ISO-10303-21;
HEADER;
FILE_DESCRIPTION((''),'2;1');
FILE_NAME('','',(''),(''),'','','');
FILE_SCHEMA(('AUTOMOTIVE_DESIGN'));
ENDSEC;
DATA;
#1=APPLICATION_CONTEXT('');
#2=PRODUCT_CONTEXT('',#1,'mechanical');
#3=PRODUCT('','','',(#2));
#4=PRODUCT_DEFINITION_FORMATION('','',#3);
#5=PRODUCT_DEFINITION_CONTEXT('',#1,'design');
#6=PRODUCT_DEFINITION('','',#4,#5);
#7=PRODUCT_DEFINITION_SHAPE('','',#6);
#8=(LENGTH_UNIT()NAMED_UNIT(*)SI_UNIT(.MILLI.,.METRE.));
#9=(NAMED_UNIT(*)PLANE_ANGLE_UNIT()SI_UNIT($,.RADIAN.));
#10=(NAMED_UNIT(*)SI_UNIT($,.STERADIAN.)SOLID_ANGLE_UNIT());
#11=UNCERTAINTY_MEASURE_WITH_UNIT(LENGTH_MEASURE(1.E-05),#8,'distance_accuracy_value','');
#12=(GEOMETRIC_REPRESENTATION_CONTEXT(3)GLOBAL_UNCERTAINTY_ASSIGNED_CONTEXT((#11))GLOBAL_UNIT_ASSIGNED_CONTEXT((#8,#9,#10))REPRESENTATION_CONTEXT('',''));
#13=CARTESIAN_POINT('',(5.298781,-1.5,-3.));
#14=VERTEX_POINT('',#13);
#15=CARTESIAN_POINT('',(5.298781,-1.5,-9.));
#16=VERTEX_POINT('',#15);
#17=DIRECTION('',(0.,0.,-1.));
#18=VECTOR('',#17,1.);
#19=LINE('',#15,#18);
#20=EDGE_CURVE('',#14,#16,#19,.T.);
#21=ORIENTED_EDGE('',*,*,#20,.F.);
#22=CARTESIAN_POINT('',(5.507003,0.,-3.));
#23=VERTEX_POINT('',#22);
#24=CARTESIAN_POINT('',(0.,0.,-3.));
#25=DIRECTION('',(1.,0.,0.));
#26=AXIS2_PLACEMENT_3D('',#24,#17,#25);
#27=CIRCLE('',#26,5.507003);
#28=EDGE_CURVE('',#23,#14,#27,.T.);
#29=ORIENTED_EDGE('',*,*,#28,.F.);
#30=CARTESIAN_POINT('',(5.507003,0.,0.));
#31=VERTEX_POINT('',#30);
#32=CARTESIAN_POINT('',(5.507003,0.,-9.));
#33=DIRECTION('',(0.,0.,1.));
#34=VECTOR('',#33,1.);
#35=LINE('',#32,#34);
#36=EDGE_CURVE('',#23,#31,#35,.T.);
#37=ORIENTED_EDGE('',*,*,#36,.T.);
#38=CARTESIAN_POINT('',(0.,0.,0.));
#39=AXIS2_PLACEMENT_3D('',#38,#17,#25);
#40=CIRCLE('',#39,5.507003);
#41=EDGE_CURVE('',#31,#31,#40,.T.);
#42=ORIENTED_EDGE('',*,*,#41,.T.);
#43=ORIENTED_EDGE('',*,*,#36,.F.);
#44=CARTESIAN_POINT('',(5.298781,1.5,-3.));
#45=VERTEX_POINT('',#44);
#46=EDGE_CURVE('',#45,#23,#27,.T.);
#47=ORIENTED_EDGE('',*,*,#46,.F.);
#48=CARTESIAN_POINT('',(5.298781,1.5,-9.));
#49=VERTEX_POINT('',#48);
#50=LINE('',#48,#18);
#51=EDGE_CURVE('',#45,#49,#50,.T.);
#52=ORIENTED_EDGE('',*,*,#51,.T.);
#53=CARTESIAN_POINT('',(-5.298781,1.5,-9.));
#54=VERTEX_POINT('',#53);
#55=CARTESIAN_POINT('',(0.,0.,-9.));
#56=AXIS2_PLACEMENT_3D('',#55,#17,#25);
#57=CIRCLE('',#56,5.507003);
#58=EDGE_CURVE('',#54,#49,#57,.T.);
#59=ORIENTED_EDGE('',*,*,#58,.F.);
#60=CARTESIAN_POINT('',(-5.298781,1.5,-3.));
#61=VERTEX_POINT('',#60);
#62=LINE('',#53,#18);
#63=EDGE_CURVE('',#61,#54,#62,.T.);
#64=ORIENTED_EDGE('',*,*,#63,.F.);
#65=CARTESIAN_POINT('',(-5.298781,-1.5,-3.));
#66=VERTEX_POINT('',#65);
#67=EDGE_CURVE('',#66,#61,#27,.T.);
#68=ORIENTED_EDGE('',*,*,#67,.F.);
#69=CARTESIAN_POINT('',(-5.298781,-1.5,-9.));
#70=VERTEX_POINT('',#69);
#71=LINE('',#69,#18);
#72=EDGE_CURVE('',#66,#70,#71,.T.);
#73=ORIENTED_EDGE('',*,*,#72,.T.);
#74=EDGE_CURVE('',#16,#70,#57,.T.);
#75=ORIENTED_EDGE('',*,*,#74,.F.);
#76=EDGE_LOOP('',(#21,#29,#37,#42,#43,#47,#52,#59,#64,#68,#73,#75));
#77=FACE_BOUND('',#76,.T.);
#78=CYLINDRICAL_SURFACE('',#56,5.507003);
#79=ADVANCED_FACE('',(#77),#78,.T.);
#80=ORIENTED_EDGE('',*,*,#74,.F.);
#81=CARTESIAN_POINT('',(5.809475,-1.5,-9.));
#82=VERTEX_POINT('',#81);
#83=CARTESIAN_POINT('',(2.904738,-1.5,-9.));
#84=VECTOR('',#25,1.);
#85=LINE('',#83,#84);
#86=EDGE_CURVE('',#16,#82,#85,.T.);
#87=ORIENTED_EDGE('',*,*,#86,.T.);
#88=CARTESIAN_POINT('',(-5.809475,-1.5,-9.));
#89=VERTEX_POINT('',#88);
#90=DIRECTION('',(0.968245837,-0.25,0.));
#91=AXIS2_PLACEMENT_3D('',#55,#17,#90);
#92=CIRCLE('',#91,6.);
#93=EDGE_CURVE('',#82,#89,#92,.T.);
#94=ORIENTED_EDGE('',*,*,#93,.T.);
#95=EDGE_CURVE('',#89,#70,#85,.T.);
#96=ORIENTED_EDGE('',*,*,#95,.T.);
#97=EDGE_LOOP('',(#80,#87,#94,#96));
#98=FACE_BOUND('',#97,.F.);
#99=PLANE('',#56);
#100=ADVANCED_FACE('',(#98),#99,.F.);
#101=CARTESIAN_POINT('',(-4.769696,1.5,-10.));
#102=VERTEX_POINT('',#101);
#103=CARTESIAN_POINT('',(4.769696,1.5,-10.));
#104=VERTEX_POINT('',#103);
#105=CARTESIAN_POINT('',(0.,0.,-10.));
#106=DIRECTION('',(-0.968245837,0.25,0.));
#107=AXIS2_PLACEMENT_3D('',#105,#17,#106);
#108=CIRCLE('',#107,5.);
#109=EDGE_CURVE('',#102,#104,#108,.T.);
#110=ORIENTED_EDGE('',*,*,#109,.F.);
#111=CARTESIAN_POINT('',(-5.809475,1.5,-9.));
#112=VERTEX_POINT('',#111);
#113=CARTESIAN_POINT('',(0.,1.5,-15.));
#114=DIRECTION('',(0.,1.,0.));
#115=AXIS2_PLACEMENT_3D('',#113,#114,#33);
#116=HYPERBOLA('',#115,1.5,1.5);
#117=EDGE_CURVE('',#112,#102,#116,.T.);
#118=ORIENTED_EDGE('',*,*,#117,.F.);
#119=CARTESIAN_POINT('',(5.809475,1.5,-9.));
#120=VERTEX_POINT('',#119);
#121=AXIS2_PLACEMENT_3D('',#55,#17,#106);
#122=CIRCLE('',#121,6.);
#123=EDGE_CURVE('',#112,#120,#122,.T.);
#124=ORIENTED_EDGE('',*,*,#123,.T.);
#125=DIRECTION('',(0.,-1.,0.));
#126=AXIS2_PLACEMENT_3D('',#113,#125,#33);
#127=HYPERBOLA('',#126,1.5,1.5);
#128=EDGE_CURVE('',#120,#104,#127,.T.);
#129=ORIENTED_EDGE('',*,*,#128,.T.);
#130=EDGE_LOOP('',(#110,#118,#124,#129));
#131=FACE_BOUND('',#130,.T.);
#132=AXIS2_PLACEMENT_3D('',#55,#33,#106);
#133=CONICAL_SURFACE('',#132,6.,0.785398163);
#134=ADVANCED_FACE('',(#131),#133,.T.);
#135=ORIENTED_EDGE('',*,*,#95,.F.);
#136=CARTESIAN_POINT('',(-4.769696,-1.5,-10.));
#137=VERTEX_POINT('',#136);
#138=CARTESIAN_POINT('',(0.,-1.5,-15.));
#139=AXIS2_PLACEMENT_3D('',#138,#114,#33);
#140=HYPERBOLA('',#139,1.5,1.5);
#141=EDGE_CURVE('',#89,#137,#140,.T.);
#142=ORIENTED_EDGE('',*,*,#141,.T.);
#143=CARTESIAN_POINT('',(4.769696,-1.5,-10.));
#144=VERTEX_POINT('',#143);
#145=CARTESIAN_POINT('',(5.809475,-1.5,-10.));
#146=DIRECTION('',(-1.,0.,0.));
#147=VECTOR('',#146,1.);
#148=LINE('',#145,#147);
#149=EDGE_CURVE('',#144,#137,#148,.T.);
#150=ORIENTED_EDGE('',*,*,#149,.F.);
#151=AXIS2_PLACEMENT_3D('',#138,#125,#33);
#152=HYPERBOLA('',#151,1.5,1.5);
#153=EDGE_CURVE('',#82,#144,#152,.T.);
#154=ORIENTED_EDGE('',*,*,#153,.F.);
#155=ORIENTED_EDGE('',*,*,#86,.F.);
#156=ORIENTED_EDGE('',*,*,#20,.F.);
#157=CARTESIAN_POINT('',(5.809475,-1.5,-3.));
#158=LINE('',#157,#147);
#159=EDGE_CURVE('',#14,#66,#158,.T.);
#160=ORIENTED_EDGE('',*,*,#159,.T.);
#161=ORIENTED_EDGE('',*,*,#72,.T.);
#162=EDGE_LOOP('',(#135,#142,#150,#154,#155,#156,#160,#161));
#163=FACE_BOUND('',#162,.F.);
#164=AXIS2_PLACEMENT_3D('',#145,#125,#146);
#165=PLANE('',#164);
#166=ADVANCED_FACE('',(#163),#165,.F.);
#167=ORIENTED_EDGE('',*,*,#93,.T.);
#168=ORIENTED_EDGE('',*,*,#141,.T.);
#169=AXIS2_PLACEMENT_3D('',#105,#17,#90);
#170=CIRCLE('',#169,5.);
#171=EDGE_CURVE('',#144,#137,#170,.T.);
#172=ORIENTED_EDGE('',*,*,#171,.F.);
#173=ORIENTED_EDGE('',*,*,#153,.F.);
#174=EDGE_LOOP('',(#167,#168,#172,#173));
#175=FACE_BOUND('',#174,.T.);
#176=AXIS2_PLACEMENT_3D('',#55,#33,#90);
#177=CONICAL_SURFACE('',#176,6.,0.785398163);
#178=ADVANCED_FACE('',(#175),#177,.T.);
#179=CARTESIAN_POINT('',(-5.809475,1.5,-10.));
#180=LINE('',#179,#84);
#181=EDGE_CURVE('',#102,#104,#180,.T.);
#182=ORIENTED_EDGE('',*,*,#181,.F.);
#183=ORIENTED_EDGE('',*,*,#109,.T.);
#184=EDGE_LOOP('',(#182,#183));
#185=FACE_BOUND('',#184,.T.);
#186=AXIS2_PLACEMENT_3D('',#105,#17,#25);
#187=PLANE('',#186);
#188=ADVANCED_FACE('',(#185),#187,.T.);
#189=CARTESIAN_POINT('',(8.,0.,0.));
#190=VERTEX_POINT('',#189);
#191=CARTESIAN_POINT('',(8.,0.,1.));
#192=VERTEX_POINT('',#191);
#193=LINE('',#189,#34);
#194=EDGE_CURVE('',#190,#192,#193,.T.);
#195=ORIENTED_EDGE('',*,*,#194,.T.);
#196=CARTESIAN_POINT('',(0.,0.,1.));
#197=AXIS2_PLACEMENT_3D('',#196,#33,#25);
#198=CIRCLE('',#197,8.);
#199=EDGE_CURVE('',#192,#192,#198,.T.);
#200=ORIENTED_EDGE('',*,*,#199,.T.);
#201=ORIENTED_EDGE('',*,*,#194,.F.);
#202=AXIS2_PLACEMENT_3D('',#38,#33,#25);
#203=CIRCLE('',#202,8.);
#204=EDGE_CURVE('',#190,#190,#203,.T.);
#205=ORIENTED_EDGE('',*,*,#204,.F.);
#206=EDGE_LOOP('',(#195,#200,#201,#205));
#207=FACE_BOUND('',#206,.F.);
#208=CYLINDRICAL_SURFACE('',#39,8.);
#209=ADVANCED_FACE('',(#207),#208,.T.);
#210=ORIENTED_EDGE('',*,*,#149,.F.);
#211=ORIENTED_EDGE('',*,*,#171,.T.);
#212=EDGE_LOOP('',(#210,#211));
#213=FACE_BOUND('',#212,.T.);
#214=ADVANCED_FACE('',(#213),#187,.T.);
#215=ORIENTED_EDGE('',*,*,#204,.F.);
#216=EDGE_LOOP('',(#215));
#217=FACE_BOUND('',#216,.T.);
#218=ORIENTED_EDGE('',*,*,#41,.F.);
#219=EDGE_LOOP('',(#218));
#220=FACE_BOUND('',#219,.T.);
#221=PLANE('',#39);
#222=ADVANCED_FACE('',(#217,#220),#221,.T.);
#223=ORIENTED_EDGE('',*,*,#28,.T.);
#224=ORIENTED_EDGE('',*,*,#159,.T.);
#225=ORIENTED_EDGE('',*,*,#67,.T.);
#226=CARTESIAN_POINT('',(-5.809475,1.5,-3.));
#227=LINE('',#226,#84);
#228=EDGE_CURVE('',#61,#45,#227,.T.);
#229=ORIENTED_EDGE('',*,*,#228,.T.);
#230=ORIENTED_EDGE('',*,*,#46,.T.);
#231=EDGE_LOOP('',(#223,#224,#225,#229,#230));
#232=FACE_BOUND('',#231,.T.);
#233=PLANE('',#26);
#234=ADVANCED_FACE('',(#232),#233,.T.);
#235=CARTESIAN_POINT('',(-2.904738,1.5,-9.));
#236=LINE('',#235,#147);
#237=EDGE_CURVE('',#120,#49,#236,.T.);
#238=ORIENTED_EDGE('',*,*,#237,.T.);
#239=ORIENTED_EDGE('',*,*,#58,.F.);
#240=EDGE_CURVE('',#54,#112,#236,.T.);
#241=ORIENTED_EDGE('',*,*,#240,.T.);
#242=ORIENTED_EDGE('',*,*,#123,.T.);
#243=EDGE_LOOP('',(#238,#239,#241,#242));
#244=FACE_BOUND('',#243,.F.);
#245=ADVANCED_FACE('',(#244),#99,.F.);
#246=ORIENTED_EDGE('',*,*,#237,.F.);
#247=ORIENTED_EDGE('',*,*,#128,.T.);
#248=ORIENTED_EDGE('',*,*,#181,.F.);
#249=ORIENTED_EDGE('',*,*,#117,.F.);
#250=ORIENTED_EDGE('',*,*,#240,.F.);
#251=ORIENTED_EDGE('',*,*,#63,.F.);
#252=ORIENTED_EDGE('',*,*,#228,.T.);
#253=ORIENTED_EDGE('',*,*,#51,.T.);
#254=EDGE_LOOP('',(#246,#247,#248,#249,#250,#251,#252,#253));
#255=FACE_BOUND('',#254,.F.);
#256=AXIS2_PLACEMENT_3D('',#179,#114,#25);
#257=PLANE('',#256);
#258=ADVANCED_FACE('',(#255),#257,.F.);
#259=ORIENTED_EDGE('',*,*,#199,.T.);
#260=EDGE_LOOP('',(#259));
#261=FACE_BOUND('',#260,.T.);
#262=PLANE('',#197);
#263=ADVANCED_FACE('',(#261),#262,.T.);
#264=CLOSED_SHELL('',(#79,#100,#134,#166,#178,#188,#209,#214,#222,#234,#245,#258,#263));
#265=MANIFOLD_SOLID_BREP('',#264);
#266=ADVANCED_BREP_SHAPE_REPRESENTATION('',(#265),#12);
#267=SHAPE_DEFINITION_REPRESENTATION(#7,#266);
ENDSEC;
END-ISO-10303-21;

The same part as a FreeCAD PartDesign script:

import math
import FreeCAD as App
import Part
import Sketcher
from FreeCAD import Vector
Q = App.Units.Quantity


def edges_at(feature, points):
    """Names of the edges that pass closest to the given points."""
    edges = feature.Shape.Edges
    near = lambda p: min(range(len(edges)), key=lambda i: edges[i].distToShape(Part.Vertex(*p))[0])
    return sorted({f"Edge{near(p) + 1}" for p in points})

doc = App.newDocument("Part")
body = doc.addObject("PartDesign::Body", "Body")

# Sketch on XY plane
sketch1 = doc.addObject("Sketcher::SketchObject", "Sketch")
body.addObject(sketch1)
sketch1.AttachmentSupport = (doc.XY_Plane, [""])
sketch1.MapMode = "FlatFace"
sketch1.addGeometry(Part.Circle(Vector(0, 0, 0), Vector(0, 0, 1), 8), False)
sketch1.addConstraint([
    Sketcher.Constraint("Coincident", 0, 3, -1, 1),
    Sketcher.Constraint("Diameter", 0, Q("16 mm")),
])
pad1 = doc.addObject("PartDesign::Pad", "Pad")
body.addObject(pad1)
pad1.Profile = sketch1
pad1.Length = 1

# Sketch on XY plane
sketch2 = doc.addObject("Sketcher::SketchObject", "Sketch001")
body.addObject(sketch2)
sketch2.AttachmentSupport = (doc.XY_Plane, [""])
sketch2.MapMode = "FlatFace"
sketch2.addGeometry(Part.Circle(Vector(0, 0, 0), Vector(0, 0, 1), 6), False)
sketch2.addConstraint([
    Sketcher.Constraint("Coincident", 0, 3, -1, 1),
    Sketcher.Constraint("Diameter", 0, Q("12 mm")),
])
pad2 = doc.addObject("PartDesign::Pad", "Pad001")
body.addObject(pad2)
pad2.Profile = sketch2
pad2.Length = 10
pad2.Reversed = True

# Sketch on XY plane
sketch3 = doc.addObject("Sketcher::SketchObject", "Sketch002")
body.addObject(sketch3)
sketch3.AttachmentSupport = (doc.XY_Plane, [""])
sketch3.MapMode = "FlatFace"
sketch3.AttachmentOffset = App.Placement(Vector(0, 0, -10), App.Rotation())
sketch3.addGeometry([
    Part.ArcOfCircle(Part.Circle(Vector(0, 0, 0), Vector(0, 0, 1), 6), math.radians(-14), math.radians(14)),
    Part.LineSegment(Vector(5.8, -1.5, 0), Vector(-5.8, -1.5, 0)),
    Part.ArcOfCircle(Part.Circle(Vector(0, 0, 0), Vector(0, 0, 1), 6), math.radians(166), math.radians(194)),
    Part.LineSegment(Vector(-5.8, 1.5, 0), Vector(5.8, 1.5, 0)),
], False)
sketch3.addConstraint([
    Sketcher.Constraint("Coincident", 0, 1, 1, 1),
    Sketcher.Constraint("Coincident", 1, 2, 2, 2),
    Sketcher.Constraint("Coincident", 2, 1, 3, 1),
    Sketcher.Constraint("Coincident", 3, 2, 0, 2),
    Sketcher.Constraint("Horizontal", 1),
    Sketcher.Constraint("Horizontal", 3),
    Sketcher.Constraint("Coincident", 0, 3, -1, 1),
    Sketcher.Constraint("Coincident", 2, 3, -1, 1),
    Sketcher.Constraint("Equal", 0, 2),
    Sketcher.Constraint("Vertical", 1, 2, 2, 1),
    Sketcher.Constraint("Radius", 0, Q("6 mm")),
    Sketcher.Constraint("DistanceY", 1, 2, 2, 1, Q("3 mm")),
])
pocket1 = doc.addObject("PartDesign::Pocket", "Pocket")
body.addObject(pocket1)
pocket1.Profile = sketch3
pocket1.Length = 7
pocket1.Reversed = True
doc.recompute()

chamfer = doc.addObject("PartDesign::Chamfer", "Chamfer")
body.addObject(chamfer)
chamfer.Base = (pocket1, edges_at(pocket1, [(0, 6, -10), (0, -6, -10)]))
chamfer.Size = 1

# Sketch on XY plane
sketch4 = doc.addObject("Sketcher::SketchObject", "Sketch003")
body.addObject(sketch4)
sketch4.AttachmentSupport = (doc.XY_Plane, [""])
sketch4.MapMode = "FlatFace"
sketch4.AttachmentOffset = App.Placement(Vector(0, 0, -9), App.Rotation())
sketch4.addGeometry([
    Part.Circle(Vector(0, 0, 0), Vector(0, 0, 1), 6),
    Part.Circle(Vector(0, 0, 0), Vector(0, 0, 1), 6),
], False)
sketch4.addConstraint([
    Sketcher.Constraint("Coincident", 0, 3, -1, 1),
    Sketcher.Constraint("Coincident", 1, 3, -1, 1),
    Sketcher.Constraint("Diameter", 0, Q("12 mm")),
    Sketcher.Constraint("Diameter", 1, Q("11.014005 mm")),
])
pocket2 = doc.addObject("PartDesign::Pocket", "Pocket001")
body.addObject(pocket2)
pocket2.Profile = sketch4
pocket2.Length = 9
pocket2.Reversed = True

doc.recompute()
